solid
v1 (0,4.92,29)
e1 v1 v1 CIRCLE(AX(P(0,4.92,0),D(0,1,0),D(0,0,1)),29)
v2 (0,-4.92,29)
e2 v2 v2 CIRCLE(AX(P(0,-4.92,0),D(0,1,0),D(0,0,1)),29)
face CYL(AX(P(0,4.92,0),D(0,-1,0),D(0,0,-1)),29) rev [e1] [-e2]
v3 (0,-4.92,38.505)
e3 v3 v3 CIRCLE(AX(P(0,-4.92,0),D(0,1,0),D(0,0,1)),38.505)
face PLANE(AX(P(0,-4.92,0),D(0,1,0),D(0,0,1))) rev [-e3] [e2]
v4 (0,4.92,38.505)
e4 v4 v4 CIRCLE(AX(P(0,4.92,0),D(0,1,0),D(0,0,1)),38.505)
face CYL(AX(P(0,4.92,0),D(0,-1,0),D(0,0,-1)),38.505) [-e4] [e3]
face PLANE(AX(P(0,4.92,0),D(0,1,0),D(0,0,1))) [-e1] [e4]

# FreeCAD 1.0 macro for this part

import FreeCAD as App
import Part
import Sketcher
from FreeCAD import Vector

doc = App.newDocument("Part")
body = doc.addObject("PartDesign::Body", "Body")

# Sketch on XZ plane
sketch1 = body.newObject("Sketcher::SketchObject", "Sketch")
sketch1.AttachmentSupport = (doc.getObject("XZ_Plane"), [""])
sketch1.MapMode = "FlatFace"
sketch1.addGeometry(Part.Circle(Vector(0, 0, 0), Vector(0, 0, 1), 38.505), False)
sketch1.addGeometry(Part.Circle(Vector(0, 0, 0), Vector(0, 0, 1), 29), False)
sketch1.addConstraint(Sketcher.Constraint("Coincident", 0, 3, -1, 1))
sketch1.addConstraint(Sketcher.Constraint("Coincident", 1, 3, -1, 1))
sketch1.addConstraint(Sketcher.Constraint("Diameter", 1, 58.0))
sketch1.addConstraint(Sketcher.Constraint("Diameter", 0, 77.01))
pad1 = body.newObject("PartDesign::Pad", "Pad")
pad1.Profile = sketch1
pad1.Length = 9.84
pad1.Midplane = True

doc.recompute()
